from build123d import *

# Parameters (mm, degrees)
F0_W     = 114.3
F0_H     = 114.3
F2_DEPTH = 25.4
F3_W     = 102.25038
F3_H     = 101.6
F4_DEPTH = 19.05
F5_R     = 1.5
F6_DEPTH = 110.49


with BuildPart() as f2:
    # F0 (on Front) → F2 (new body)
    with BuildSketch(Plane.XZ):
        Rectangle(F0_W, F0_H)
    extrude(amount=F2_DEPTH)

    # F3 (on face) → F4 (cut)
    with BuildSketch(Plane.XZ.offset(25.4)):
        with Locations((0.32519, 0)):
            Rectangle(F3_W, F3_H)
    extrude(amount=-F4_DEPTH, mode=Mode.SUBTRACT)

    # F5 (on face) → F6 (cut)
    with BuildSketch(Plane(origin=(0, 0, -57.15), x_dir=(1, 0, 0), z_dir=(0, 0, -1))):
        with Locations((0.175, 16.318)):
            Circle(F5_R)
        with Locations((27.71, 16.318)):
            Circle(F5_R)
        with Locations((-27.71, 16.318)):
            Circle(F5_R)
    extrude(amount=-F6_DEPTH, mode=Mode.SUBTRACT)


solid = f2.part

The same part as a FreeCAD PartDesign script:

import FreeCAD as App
import Part
import Sketcher

V = App.Vector
Q = App.Units.Quantity


def add_polygon(sketch, points):
    """Adds a closed chain of lines whose ends are joined by coincident constraints."""
    first, n = sketch.GeometryCount, len(points)
    for a, b in zip(points, points[1:] + points[:1]):
        sketch.addGeometry(Part.LineSegment(App.Vector(*a, 0), App.Vector(*b, 0)), False)
    for i in range(n):
        sketch.addConstraint(Sketcher.Constraint("Coincident", first + i, 2, first + (i + 1) % n, 1))

doc = App.newDocument("Part")
body = doc.addObject("PartDesign::Body", "Body")

# Sketch on XZ plane
sketch1 = body.newObject("Sketcher::SketchObject", "Sketch")
sketch1.AttachmentSupport = (doc.getObject("XZ_Plane"), [""])
sketch1.MapMode = "FlatFace"
add_polygon(sketch1, [(-57, 57), (-57, -57), (57, -57), (57, 57)])  # lines 0-3
sketch1.addConstraint(Sketcher.Constraint("Vertical", 0))
sketch1.addConstraint(Sketcher.Constraint("Horizontal", 1))
sketch1.addConstraint(Sketcher.Constraint("Vertical", 2))
sketch1.addConstraint(Sketcher.Constraint("Horizontal", 3))
sketch1.addConstraint(Sketcher.Constraint("Symmetric", 0, 2, 2, 2, -1, 1))
sketch1.addConstraint(Sketcher.Constraint("Equal", 3, 0))
sketch1.addConstraint(Sketcher.Constraint("DistanceX", 1, 1, 1, 2, Q("4.5 in")))
pad1 = body.newObject("PartDesign::Pad", "Pad")
pad1.Profile = sketch1
pad1.Length = Q("1 in")

# Sketch on XZ plane
sketch2 = body.newObject("Sketcher::SketchObject", "Sketch001")
sketch2.AttachmentSupport = (doc.getObject("XZ_Plane"), [""])
sketch2.MapMode = "FlatFace"
sketch2.AttachmentOffset = App.Placement(V(0, 0, 1 * 25.4), App.Rotation())
add_polygon(sketch2, [(-51, 51), (-51, -51), (51, -51), (51, 51)])  # lines 0-3
sketch2.addConstraint(Sketcher.Constraint("Vertical", 0))
sketch2.addConstraint(Sketcher.Constraint("Horizontal", 1))
sketch2.addConstraint(Sketcher.Constraint("Vertical", 2))
sketch2.addConstraint(Sketcher.Constraint("Horizontal", 3))
sketch2.addConstraint(Sketcher.Constraint("DistanceY", 0, 2, 0, 1, Q("4 in")))
sketch2.addConstraint(Sketcher.Constraint("DistanceX", 0, 2, -1, 1, Q("2 in")))
sketch2.addConstraint(Sketcher.Constraint("DistanceY", 0, 2, -1, 1, Q("2 in")))
sketch2.addConstraint(Sketcher.Constraint("DistanceX", 1, 1, 1, 2, Q("102.25038 mm")))
pocket1 = body.newObject("PartDesign::Pocket", "Pocket")
pocket1.Profile = sketch2
pocket1.Length = Q("0.75 in")

# Sketch on XY plane
sketch3 = body.newObject("Sketcher::SketchObject", "Sketch002")
sketch3.AttachmentSupport = (doc.getObject("XY_Plane"), [""])
sketch3.MapMode = "FlatFace"
sketch3.AttachmentOffset = App.Placement(V(0, 0, -2.25 * 25.4), App.Rotation())
sketch3.addGeometry(Part.Circle(V(0.2, -16.3, 0), V(0, 0, 1), 1.5), False)
sketch3.addGeometry(Part.Circle(V(27.7, -16.3, 0), V(0, 0, 1), 1.5), False)
sketch3.addGeometry(Part.Circle(V(-27.7, -16.3, 0), V(0, 0, 1), 1.5), False)
sketch3.addConstraint(Sketcher.Constraint("Equal", 0, 1))
sketch3.addConstraint(Sketcher.Constraint("Equal", 1, 2))
sketch3.addConstraint(Sketcher.Constraint("Symmetric", 1, 3, 2, 3, -2))
sketch3.addConstraint(Sketcher.Constraint("Horizontal", 0, 3, 1, 3))
sketch3.addConstraint(Sketcher.Constraint("Diameter", 0, Q("3 mm")))
sketch3.addConstraint(Sketcher.Constraint("DistanceX", -1, 1, 0, 3, Q("0.175 mm")))
sketch3.addConstraint(Sketcher.Constraint("DistanceY", 0, 3, -1, 1, Q("16.318 mm")))
sketch3.addConstraint(Sketcher.Constraint("DistanceX", -1, 1, 1, 3, Q("27.71 mm")))
pocket2 = body.newObject("PartDesign::Pocket", "Pocket001")
pocket2.Profile = sketch3
pocket2.Length = Q("4.35 in")
pocket2.Reversed = True

doc.recompute()
